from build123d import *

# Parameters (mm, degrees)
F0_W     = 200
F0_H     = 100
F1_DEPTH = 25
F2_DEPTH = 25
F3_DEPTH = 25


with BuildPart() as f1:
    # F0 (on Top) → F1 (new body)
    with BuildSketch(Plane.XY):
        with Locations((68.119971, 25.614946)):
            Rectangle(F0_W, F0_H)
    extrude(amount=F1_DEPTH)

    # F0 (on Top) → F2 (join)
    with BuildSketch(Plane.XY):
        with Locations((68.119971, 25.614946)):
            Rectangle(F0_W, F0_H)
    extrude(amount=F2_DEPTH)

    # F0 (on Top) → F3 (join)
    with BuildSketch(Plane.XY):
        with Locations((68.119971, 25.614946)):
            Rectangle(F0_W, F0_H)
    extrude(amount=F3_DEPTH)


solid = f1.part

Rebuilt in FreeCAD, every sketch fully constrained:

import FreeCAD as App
import Part
import Sketcher
from FreeCAD import Vector
Q = App.Units.Quantity

doc = App.newDocument("Part")
body = doc.addObject("PartDesign::Body", "Body")

# Sketch on XY plane
sketch1 = body.newObject("Sketcher::SketchObject", "Sketch")
sketch1.AttachmentSupport = (doc.getObject("XY_Plane"), [""])
sketch1.MapMode = "FlatFace"
sketch1.addGeometry(Part.LineSegment(Vector(-31.880029, 75.614946, 0), Vector(-31.880029, -24.385054, 0)), False)
sketch1.addGeometry(Part.LineSegment(Vector(-31.880029, -24.385054, 0), Vector(168.119971, -24.385054, 0)), False)
sketch1.addGeometry(Part.LineSegment(Vector(168.119971, -24.385054, 0), Vector(168.119971, 75.614946, 0)), False)
sketch1.addGeometry(Part.LineSegment(Vector(168.119971, 75.614946, 0), Vector(-31.880029, 75.614946, 0)), False)
sketch1.addConstraint(Sketcher.Constraint("Coincident", 0, 2, 1, 1))
sketch1.addConstraint(Sketcher.Constraint("Coincident", 1, 2, 2, 1))
sketch1.addConstraint(Sketcher.Constraint("Coincident", 2, 2, 3, 1))
sketch1.addConstraint(Sketcher.Constraint("Coincident", 3, 2, 0, 1))
sketch1.addConstraint(Sketcher.Constraint("Vertical", 0))
sketch1.addConstraint(Sketcher.Constraint("Horizontal", 1))
sketch1.addConstraint(Sketcher.Constraint("Vertical", 2))
sketch1.addConstraint(Sketcher.Constraint("Horizontal", 3))
sketch1.addConstraint(Sketcher.Constraint("DistanceX", 1, 1, 1, 2, Q("200 mm")))
sketch1.addConstraint(Sketcher.Constraint("DistanceY", 0, 2, 0, 1, Q("100 mm")))
sketch1.addConstraint(Sketcher.Constraint("DistanceX", 0, 2, -1, 1, Q("31.880029 mm")))
sketch1.addConstraint(Sketcher.Constraint("DistanceY", 0, 2, -1, 1, Q("24.385054 mm")))
pad1 = body.newObject("PartDesign::Pad", "Pad")
pad1.Profile = sketch1
pad1.Length = 25

# Sketch on XY plane
sketch2 = body.newObject("Sketcher::SketchObject", "Sketch001")
sketch2.AttachmentSupport = (doc.getObject("XY_Plane"), [""])
sketch2.MapMode = "FlatFace"
sketch2.addGeometry(Part.LineSegment(Vector(-31.880029, 75.614946, 0), Vector(-31.880029, -24.385054, 0)), False)
sketch2.addGeometry(Part.LineSegment(Vector(-31.880029, -24.385054, 0), Vector(168.119971, -24.385054, 0)), False)
sketch2.addGeometry(Part.LineSegment(Vector(168.119971, -24.385054, 0), Vector(168.119971, 75.614946, 0)), False)
sketch2.addGeometry(Part.LineSegment(Vector(168.119971, 75.614946, 0), Vector(-31.880029, 75.614946, 0)), False)
sketch2.addConstraint(Sketcher.Constraint("Coincident", 0, 2, 1, 1))
sketch2.addConstraint(Sketcher.Constraint("Coincident", 1, 2, 2, 1))
sketch2.addConstraint(Sketcher.Constraint("Coincident", 2, 2, 3, 1))
sketch2.addConstraint(Sketcher.Constraint("Coincident", 3, 2, 0, 1))
sketch2.addConstraint(Sketcher.Constraint("Vertical", 0))
sketch2.addConstraint(Sketcher.Constraint("Horizontal", 1))
sketch2.addConstraint(Sketcher.Constraint("Vertical", 2))
sketch2.addConstraint(Sketcher.Constraint("Horizontal", 3))
sketch2.addConstraint(Sketcher.Constraint("DistanceX", 1, 1, 1, 2, Q("200 mm")))
sketch2.addConstraint(Sketcher.Constraint("DistanceY", 0, 2, 0, 1, Q("100 mm")))
sketch2.addConstraint(Sketcher.Constraint("DistanceX", 0, 2, -1, 1, Q("31.880029 mm")))
sketch2.addConstraint(Sketcher.Constraint("DistanceY", 0, 2, -1, 1, Q("24.385054 mm")))
pad2 = body.newObject("PartDesign::Pad", "Pad001")
pad2.Profile = sketch2
pad2.Length = 25

# Sketch on XY plane
sketch3 = body.newObject("Sketcher::SketchObject", "Sketch002")
sketch3.AttachmentSupport = (doc.getObject("XY_Plane"), [""])
sketch3.MapMode = "FlatFace"
sketch3.addGeometry(Part.LineSegment(Vector(-31.880029, 75.614946, 0), Vector(-31.880029, -24.385054, 0)), False)
sketch3.addGeometry(Part.LineSegment(Vector(-31.880029, -24.385054, 0), Vector(168.119971, -24.385054, 0)), False)
sketch3.addGeometry(Part.LineSegment(Vector(168.119971, -24.385054, 0), Vector(168.119971, 75.614946, 0)), False)
sketch3.addGeometry(Part.LineSegment(Vector(168.119971, 75.614946, 0), Vector(-31.880029, 75.614946, 0)), False)
sketch3.addConstraint(Sketcher.Constraint("Coincident", 0, 2, 1, 1))
sketch3.addConstraint(Sketcher.Constraint("Coincident", 1, 2, 2, 1))
sketch3.addConstraint(Sketcher.Constraint("Coincident", 2, 2, 3, 1))
sketch3.addConstraint(Sketcher.Constraint("Coincident", 3, 2, 0, 1))
sketch3.addConstraint(Sketcher.Constraint("Vertical", 0))
sketch3.addConstraint(Sketcher.Constraint("Horizontal", 1))
sketch3.addConstraint(Sketcher.Constraint("Vertical", 2))
sketch3.addConstraint(Sketcher.Constraint("Horizontal", 3))
sketch3.addConstraint(Sketcher.Constraint("DistanceX", 1, 1, 1, 2, Q("200 mm")))
sketch3.addConstraint(Sketcher.Constraint("DistanceY", 0, 2, 0, 1, Q("100 mm")))
sketch3.addConstraint(Sketcher.Constraint("DistanceX", 0, 2, -1, 1, Q("31.880029 mm")))
sketch3.addConstraint(Sketcher.Constraint("DistanceY", 0, 2, -1, 1, Q("24.385054 mm")))
pad3 = body.newObject("PartDesign::Pad", "Pad002")
pad3.Profile = sketch3
pad3.Length = 25

doc.recompute()
